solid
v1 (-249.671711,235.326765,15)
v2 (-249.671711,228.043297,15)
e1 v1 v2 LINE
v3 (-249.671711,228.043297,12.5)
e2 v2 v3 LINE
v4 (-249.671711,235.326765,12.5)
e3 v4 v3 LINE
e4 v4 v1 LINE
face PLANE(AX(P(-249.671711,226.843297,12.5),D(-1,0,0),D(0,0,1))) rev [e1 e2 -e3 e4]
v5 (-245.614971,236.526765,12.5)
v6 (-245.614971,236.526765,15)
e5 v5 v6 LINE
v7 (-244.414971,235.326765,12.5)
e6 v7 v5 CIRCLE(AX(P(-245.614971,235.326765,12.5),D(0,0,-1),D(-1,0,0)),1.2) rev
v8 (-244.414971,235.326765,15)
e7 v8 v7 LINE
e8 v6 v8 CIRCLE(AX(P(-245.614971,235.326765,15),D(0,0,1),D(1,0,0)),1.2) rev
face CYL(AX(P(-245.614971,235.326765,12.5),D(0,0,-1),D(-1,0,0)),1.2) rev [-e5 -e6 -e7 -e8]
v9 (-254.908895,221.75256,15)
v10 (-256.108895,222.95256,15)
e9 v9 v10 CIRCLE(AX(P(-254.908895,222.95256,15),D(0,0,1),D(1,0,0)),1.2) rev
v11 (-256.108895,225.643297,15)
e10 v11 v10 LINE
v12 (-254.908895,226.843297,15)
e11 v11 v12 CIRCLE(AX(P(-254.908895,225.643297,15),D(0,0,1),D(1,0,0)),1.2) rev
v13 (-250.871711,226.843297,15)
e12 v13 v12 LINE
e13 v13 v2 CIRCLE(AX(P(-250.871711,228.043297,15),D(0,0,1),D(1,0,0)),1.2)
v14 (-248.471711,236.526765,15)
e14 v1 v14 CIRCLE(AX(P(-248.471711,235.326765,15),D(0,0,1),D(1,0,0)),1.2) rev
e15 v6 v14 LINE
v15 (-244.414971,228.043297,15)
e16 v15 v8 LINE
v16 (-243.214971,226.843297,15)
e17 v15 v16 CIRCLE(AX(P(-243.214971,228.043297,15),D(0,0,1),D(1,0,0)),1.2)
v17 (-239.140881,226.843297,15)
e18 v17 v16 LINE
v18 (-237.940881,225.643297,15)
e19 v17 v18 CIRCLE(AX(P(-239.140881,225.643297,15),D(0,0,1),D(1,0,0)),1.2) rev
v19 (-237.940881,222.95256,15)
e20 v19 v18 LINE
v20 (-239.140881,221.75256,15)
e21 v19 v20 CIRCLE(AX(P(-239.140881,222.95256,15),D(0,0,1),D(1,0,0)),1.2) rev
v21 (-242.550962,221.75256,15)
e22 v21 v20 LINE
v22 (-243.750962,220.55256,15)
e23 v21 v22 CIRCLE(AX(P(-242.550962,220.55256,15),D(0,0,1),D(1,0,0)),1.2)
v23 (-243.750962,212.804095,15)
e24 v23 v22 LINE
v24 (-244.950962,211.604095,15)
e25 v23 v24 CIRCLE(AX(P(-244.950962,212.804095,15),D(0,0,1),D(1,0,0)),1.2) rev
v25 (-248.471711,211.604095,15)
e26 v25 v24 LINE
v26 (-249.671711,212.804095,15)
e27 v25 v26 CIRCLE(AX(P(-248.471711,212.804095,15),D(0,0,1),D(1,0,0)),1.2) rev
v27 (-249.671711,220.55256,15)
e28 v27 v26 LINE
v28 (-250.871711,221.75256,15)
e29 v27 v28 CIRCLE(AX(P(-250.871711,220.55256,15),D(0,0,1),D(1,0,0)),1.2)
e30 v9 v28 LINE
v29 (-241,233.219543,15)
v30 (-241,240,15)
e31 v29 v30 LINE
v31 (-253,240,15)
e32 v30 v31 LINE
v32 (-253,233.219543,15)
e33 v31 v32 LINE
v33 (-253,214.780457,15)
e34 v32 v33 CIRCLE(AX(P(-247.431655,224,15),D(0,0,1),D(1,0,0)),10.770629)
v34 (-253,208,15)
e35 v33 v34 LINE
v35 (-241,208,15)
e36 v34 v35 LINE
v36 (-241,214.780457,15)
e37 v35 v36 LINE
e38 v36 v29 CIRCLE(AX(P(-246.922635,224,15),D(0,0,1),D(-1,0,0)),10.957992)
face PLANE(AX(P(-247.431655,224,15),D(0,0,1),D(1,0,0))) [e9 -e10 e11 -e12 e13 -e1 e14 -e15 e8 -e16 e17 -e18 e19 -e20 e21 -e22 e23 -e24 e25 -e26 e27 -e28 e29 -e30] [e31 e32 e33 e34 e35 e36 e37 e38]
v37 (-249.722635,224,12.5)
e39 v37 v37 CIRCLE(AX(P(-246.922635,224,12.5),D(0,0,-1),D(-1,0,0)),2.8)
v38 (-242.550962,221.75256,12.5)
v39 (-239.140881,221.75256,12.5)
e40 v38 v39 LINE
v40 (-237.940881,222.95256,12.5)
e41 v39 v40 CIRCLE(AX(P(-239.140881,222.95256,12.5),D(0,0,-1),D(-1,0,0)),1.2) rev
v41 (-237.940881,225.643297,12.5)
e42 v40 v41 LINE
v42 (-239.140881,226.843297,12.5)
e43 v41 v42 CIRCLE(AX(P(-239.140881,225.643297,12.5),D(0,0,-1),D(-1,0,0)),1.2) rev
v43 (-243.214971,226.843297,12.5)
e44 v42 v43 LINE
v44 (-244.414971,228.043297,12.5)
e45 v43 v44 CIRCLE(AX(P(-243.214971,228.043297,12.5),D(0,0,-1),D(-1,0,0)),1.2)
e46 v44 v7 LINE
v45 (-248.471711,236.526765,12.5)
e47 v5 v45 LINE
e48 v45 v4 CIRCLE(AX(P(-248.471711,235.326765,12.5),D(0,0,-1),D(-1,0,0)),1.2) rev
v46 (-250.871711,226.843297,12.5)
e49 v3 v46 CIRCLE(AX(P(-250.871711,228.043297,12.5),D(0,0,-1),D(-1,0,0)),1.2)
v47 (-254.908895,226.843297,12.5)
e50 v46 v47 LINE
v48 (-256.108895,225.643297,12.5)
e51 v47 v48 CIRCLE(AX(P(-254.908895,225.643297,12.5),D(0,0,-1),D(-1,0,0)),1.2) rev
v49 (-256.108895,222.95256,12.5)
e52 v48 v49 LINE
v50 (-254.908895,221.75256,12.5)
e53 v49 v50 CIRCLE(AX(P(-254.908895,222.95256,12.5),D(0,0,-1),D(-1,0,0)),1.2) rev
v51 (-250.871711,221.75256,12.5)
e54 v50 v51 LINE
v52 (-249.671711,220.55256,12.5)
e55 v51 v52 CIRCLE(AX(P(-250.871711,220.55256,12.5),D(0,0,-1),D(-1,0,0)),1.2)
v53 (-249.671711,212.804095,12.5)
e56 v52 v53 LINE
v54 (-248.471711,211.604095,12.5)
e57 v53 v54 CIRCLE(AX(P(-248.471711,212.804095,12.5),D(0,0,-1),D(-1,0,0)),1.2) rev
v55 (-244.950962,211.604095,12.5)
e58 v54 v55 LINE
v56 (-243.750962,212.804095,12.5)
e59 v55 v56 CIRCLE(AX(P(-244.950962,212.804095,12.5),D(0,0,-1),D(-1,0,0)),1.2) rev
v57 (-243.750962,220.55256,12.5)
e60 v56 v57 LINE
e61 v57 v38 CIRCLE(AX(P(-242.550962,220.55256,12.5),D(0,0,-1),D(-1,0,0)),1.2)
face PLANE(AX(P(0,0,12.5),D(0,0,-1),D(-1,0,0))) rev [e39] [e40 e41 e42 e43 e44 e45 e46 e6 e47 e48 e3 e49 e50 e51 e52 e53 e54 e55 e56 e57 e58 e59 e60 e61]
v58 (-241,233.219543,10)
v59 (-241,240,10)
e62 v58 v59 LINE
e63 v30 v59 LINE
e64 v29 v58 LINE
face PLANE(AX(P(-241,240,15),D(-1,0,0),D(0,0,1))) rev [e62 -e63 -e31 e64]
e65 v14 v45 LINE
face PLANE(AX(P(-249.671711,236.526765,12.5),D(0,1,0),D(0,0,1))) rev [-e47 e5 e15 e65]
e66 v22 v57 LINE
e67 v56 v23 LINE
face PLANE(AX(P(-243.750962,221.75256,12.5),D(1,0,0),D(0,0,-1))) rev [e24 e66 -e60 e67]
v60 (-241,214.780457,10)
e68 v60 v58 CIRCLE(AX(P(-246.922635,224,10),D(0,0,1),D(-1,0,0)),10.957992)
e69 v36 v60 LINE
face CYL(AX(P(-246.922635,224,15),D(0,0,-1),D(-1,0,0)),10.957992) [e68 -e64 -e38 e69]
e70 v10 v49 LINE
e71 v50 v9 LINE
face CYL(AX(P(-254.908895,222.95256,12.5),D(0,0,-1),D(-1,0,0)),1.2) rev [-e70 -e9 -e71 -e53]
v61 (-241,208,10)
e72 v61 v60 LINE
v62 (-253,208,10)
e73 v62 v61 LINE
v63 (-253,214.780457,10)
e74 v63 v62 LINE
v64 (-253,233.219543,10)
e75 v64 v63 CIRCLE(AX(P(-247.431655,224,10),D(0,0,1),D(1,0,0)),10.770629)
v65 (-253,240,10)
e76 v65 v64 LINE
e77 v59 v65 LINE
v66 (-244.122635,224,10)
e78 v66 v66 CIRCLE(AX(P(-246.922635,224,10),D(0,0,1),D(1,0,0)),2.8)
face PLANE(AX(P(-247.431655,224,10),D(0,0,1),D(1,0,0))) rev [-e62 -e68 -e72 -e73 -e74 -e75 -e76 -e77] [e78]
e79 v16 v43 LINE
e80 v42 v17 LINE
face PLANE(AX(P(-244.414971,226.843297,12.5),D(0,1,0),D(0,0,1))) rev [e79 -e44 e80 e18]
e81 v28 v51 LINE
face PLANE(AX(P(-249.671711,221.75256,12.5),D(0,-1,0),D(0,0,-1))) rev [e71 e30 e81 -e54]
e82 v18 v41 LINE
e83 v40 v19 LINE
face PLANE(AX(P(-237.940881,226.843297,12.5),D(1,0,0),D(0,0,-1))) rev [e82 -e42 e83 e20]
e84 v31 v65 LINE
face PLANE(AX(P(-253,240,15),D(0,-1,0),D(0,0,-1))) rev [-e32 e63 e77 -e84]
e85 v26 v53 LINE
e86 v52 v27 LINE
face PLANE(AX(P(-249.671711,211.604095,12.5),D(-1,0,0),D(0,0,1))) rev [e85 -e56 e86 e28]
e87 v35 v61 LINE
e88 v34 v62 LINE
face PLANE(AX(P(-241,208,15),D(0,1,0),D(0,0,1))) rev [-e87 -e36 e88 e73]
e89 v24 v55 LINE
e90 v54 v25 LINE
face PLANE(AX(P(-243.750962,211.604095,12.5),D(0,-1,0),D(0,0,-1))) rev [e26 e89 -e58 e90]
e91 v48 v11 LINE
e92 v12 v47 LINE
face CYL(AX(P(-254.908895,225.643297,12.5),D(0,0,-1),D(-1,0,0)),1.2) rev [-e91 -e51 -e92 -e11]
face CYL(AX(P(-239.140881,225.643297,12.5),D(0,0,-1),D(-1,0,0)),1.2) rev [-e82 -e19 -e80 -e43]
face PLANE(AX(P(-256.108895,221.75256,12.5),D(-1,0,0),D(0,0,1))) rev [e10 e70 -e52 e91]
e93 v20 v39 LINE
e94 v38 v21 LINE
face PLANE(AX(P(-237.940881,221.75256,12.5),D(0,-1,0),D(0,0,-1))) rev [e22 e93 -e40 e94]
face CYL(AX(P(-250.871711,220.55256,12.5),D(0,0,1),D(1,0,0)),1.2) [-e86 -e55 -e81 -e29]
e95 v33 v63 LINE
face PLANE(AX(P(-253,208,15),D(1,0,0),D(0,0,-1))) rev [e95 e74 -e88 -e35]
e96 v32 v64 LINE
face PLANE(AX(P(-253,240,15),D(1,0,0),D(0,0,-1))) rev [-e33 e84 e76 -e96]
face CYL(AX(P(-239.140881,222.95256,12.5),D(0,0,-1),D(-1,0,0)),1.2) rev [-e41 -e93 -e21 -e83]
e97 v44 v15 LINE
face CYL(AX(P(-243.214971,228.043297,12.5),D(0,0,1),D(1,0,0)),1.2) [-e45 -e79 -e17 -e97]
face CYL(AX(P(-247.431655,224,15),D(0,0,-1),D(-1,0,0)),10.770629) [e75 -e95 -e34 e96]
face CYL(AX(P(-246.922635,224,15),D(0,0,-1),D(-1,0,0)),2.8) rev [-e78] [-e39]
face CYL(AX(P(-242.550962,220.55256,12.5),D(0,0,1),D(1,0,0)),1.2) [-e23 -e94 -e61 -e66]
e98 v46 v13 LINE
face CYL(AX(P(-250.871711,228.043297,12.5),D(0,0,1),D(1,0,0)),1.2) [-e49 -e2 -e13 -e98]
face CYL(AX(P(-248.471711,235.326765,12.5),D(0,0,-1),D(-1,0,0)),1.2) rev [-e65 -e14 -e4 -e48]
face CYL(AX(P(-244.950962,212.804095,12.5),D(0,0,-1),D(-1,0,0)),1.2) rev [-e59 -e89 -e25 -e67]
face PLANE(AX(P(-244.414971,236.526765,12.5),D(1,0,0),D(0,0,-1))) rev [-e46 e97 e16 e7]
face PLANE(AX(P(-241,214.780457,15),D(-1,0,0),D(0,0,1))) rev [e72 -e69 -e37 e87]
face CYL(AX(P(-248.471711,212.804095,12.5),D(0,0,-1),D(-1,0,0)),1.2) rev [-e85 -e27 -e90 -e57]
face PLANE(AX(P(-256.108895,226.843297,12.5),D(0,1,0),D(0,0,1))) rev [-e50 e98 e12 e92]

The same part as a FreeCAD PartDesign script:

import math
import FreeCAD as App
import Part
import Sketcher

V = App.Vector


def edges_at(feature, points):
    """Names of the edges that pass closest to the given points."""
    edges = feature.Shape.Edges
    near = lambda p: min(range(len(edges)), key=lambda i: edges[i].distToShape(Part.Vertex(*p))[0])
    return sorted({f"Edge{near(p) + 1}" for p in points})

doc = App.newDocument("Part")
params = doc.addObject("Spreadsheet::Sheet", "Params")
for row, (alias, value) in enumerate([
    ("sketch1_diameter", "5.6 mm"),
    ("sketch1_width", "12 mm"),
    ("pad1_length", "5 mm"),
    ("pocket1_length", "2.5 mm"),
    ("fillet_radius", "1.2 mm"),
], start=1):
    params.set(f"A{row}", alias)
    params.set(f"B{row}", "=" + value)
    params.setAlias(f"B{row}", alias)

body = doc.addObject("PartDesign::Body", "Body")

sketch1 = doc.addObject("Sketcher::SketchObject", "Sketch")
body.addObject(sketch1)
sketch1.AttachmentSupport = (doc.XY_Plane, [""])
sketch1.MapMode = "FlatFace"
sketch1.AttachmentOffset = App.Placement(V(0, 0, 10), App.Rotation())
sketch1.addGeometry(Part.LineSegment(V(-241, 240, 0), V(-253, 240, 0)), False)
sketch1.addGeometry(Part.LineSegment(V(-253, 240, 0), V(-253, 233.2, 0)), False)
sketch1.addGeometry(Part.ArcOfCircle(Part.Circle(V(-247.4, 224, 0), V(0, 0, 1), 10.8), math.radians(121), math.radians(239)), False)
sketch1.addGeometry(Part.LineSegment(V(-253, 214.8, 0), V(-253, 208, 0)), False)
sketch1.addGeometry(Part.LineSegment(V(-253, 208, 0), V(-241, 208, 0)), False)
sketch1.addGeometry(Part.LineSegment(V(-241, 208, 0), V(-241, 214.8, 0)), False)
sketch1.addGeometry(Part.ArcOfCircle(Part.Circle(V(-246.9, 224, 0), V(0, 0, 1), 11), math.radians(-57), math.radians(57)), False)
sketch1.addGeometry(Part.LineSegment(V(-241, 233.2, 0), V(-241, 240, 0)), False)
sketch1.addGeometry(Part.Circle(V(-246.9, 224, 0), V(0, 0, 1), 2.8), False)
sketch1.addConstraint(Sketcher.Constraint("Coincident", 0, 2, 1, 1))
sketch1.addConstraint(Sketcher.Constraint("Coincident", 1, 2, 2, 1))
sketch1.addConstraint(Sketcher.Constraint("Coincident", 2, 2, 3, 1))
sketch1.addConstraint(Sketcher.Constraint("Coincident", 3, 2, 4, 1))
sketch1.addConstraint(Sketcher.Constraint("Coincident", 4, 2, 5, 1))
sketch1.addConstraint(Sketcher.Constraint("Coincident", 5, 2, 6, 1))
sketch1.addConstraint(Sketcher.Constraint("Coincident", 6, 2, 7, 1))
sketch1.addConstraint(Sketcher.Constraint("Coincident", 7, 2, 0, 1))
sketch1.addConstraint(Sketcher.Constraint("Horizontal", 0))
sketch1.addConstraint(Sketcher.Constraint("Vertical", 1))
sketch1.addConstraint(Sketcher.Constraint("Vertical", 3))
sketch1.addConstraint(Sketcher.Constraint("Horizontal", 4))
sketch1.addConstraint(Sketcher.Constraint("Vertical", 5))
sketch1.addConstraint(Sketcher.Constraint("Vertical", 7))
sketch1.addConstraint(Sketcher.Constraint("Coincident", 8, 3, 6, 3))
sketch1.addConstraint(Sketcher.Constraint("Horizontal", 2, 3, 6, 3))
sketch1.addConstraint(Sketcher.Constraint("Horizontal", 2, 2, 5, 2))
sketch1.addConstraint(Sketcher.Constraint("Horizontal", 1, 2, 6, 2))
sketch1.addConstraint(Sketcher.Constraint("Vertical", 1, 2, 2, 2))
sketch1.addConstraint(Sketcher.Constraint("Equal", 1, 3))
sketch1.addConstraint(Sketcher.Constraint("Diameter", 8, 5.6))
sketch1.addConstraint(Sketcher.Constraint("DistanceX", 0, 2, 0, 1, 12.0))
sketch1.addConstraint(Sketcher.Constraint("DistanceY", -1, 1, 2, 3, 224.0))
sketch1.addConstraint(Sketcher.Constraint("DistanceX", 0, 2, -1, 1, 253.0))
sketch1.addConstraint(Sketcher.Constraint("DistanceY", -1, 1, 0, 2, 240.0))
sketch1.addConstraint(Sketcher.Constraint("Radius", 2, 10.770629))
sketch1.addConstraint(Sketcher.Constraint("Radius", 6, 10.957992))
sketch1.addConstraint(Sketcher.Constraint("DistanceY", 1, 2, 1, 1, 6.780457))
sketch1.setExpression("Constraints[20]", "Params.sketch1_diameter")
sketch1.setExpression("Constraints[21]", "Params.sketch1_width")
pad1 = doc.addObject("PartDesign::Pad", "Pad")
body.addObject(pad1)
pad1.Profile = sketch1
pad1.setExpression("Length", "Params.pad1_length")

sketch2 = doc.addObject("Sketcher::SketchObject", "Sketch001")
body.addObject(sketch2)
sketch2.AttachmentSupport = (doc.XY_Plane, [""])
sketch2.MapMode = "FlatFace"
sketch2.AttachmentOffset = App.Placement(V(0, 0, 15), App.Rotation())
sketch2.addGeometry(Part.LineSegment(V(-244, 237, 0), V(-250, 237, 0)), False)
sketch2.addGeometry(Part.LineSegment(V(-250, 237, 0), V(-250, 227, 0)), False)
sketch2.addGeometry(Part.LineSegment(V(-250, 227, 0), V(-256, 227, 0)), False)
sketch2.addGeometry(Part.LineSegment(V(-256, 227, 0), V(-256, 222, 0)), False)
sketch2.addGeometry(Part.LineSegment(V(-256, 222, 0), V(-250, 222, 0)), False)
sketch2.addGeometry(Part.LineSegment(V(-250, 222, 0), V(-250, 212, 0)), False)
sketch2.addGeometry(Part.LineSegment(V(-250, 212, 0), V(-244, 212, 0)), False)
sketch2.addGeometry(Part.LineSegment(V(-244, 212, 0), V(-244, 222, 0)), False)
sketch2.addGeometry(Part.LineSegment(V(-244, 222, 0), V(-238, 222, 0)), False)
sketch2.addGeometry(Part.LineSegment(V(-238, 222, 0), V(-238, 227, 0)), False)
sketch2.addGeometry(Part.LineSegment(V(-238, 227, 0), V(-244, 227, 0)), False)
sketch2.addGeometry(Part.LineSegment(V(-244, 227, 0), V(-244, 237, 0)), False)
sketch2.addConstraint(Sketcher.Constraint("Coincident", 0, 2, 1, 1))
sketch2.addConstraint(Sketcher.Constraint("Coincident", 1, 2, 2, 1))
sketch2.addConstraint(Sketcher.Constraint("Coincident", 2, 2, 3, 1))
sketch2.addConstraint(Sketcher.Constraint("Coincident", 3, 2, 4, 1))
sketch2.addConstraint(Sketcher.Constraint("Coincident", 4, 2, 5, 1))
sketch2.addConstraint(Sketcher.Constraint("Coincident", 5, 2, 6, 1))
sketch2.addConstraint(Sketcher.Constraint("Coincident", 6, 2, 7, 1))
sketch2.addConstraint(Sketcher.Constraint("Coincident", 7, 2, 8, 1))
sketch2.addConstraint(Sketcher.Constraint("Coincident", 8, 2, 9, 1))
sketch2.addConstraint(Sketcher.Constraint("Coincident", 9, 2, 10, 1))
sketch2.addConstraint(Sketcher.Constraint("Coincident", 10, 2, 11, 1))
sketch2.addConstraint(Sketcher.Constraint("Coincident", 11, 2, 0, 1))
sketch2.addConstraint(Sketcher.Constraint("Horizontal", 0))
sketch2.addConstraint(Sketcher.Constraint("Vertical", 1))
sketch2.addConstraint(Sketcher.Constraint("Horizontal", 2))
sketch2.addConstraint(Sketcher.Constraint("Vertical", 3))
sketch2.addConstraint(Sketcher.Constraint("Horizontal", 4))
sketch2.addConstraint(Sketcher.Constraint("Vertical", 5))
sketch2.addConstraint(Sketcher.Constraint("Horizontal", 6))
sketch2.addConstraint(Sketcher.Constraint("Vertical", 7))
sketch2.addConstraint(Sketcher.Constraint("Horizontal", 8))
sketch2.addConstraint(Sketcher.Constraint("Vertical", 9))
sketch2.addConstraint(Sketcher.Constraint("Horizontal", 10))
sketch2.addConstraint(Sketcher.Constraint("Vertical", 11))
sketch2.addConstraint(Sketcher.Constraint("Horizontal", 4, 2, 7, 2))
sketch2.addConstraint(Sketcher.Constraint("Horizontal", 2, 2, 9, 2))
sketch2.addConstraint(Sketcher.Constraint("Vertical", 1, 2, 4, 2))
sketch2.addConstraint(Sketcher.Constraint("DistanceX", 0, 2, 0, 1, 5.25674))
sketch2.addConstraint(Sketcher.Constraint("DistanceX", 6, 1, 6, 2, 5.920749))
sketch2.addConstraint(Sketcher.Constraint("DistanceX", 8, 1, 8, 2, 5.810081))
sketch2.addConstraint(Sketcher.Constraint("DistanceX", 2, 2, 2, 1, 6.437184))
sketch2.addConstraint(Sketcher.Constraint("DistanceY", 1, 2, 1, 1, 9.683468))
sketch2.addConstraint(Sketcher.Constraint("DistanceY", 3, 2, 3, 1, 5.090737))
sketch2.addConstraint(Sketcher.Constraint("DistanceY", 5, 2, 5, 1, 10.148465))
sketch2.addConstraint(Sketcher.Constraint("DistanceX", 0, 2, -1, 1, 249.671711))
sketch2.addConstraint(Sketcher.Constraint("DistanceY", -1, 1, 3, 2, 221.75256))
pocket1 = doc.addObject("PartDesign::Pocket", "Pocket")
body.addObject(pocket1)
pocket1.Profile = sketch2
pocket1.setExpression("Length", "Params.pocket1_length")
doc.recompute()

fillet = doc.addObject("PartDesign::Fillet", "Fillet")
body.addObject(fillet)
fillet.Base = (pocket1, edges_at(pocket1, [
    (-249.672, 226.843, 13.75),
    (-249.672, 236.527, 13.75),
    (-244.415, 236.527, 13.75),
    (-244.415, 226.843, 13.75),
    (-237.941, 226.843, 13.75),
    (-237.941, 221.753, 13.75),
    (-243.751, 221.753, 13.75),
    (-243.751, 211.604, 13.75),
    (-249.672, 211.604, 13.75),
    (-249.672, 221.753, 13.75),
    (-256.109, 221.753, 13.75),
    (-256.109, 226.843, 13.75),
]))
fillet.setExpression("Radius", "Params.fillet_radius")

doc.recompute()
